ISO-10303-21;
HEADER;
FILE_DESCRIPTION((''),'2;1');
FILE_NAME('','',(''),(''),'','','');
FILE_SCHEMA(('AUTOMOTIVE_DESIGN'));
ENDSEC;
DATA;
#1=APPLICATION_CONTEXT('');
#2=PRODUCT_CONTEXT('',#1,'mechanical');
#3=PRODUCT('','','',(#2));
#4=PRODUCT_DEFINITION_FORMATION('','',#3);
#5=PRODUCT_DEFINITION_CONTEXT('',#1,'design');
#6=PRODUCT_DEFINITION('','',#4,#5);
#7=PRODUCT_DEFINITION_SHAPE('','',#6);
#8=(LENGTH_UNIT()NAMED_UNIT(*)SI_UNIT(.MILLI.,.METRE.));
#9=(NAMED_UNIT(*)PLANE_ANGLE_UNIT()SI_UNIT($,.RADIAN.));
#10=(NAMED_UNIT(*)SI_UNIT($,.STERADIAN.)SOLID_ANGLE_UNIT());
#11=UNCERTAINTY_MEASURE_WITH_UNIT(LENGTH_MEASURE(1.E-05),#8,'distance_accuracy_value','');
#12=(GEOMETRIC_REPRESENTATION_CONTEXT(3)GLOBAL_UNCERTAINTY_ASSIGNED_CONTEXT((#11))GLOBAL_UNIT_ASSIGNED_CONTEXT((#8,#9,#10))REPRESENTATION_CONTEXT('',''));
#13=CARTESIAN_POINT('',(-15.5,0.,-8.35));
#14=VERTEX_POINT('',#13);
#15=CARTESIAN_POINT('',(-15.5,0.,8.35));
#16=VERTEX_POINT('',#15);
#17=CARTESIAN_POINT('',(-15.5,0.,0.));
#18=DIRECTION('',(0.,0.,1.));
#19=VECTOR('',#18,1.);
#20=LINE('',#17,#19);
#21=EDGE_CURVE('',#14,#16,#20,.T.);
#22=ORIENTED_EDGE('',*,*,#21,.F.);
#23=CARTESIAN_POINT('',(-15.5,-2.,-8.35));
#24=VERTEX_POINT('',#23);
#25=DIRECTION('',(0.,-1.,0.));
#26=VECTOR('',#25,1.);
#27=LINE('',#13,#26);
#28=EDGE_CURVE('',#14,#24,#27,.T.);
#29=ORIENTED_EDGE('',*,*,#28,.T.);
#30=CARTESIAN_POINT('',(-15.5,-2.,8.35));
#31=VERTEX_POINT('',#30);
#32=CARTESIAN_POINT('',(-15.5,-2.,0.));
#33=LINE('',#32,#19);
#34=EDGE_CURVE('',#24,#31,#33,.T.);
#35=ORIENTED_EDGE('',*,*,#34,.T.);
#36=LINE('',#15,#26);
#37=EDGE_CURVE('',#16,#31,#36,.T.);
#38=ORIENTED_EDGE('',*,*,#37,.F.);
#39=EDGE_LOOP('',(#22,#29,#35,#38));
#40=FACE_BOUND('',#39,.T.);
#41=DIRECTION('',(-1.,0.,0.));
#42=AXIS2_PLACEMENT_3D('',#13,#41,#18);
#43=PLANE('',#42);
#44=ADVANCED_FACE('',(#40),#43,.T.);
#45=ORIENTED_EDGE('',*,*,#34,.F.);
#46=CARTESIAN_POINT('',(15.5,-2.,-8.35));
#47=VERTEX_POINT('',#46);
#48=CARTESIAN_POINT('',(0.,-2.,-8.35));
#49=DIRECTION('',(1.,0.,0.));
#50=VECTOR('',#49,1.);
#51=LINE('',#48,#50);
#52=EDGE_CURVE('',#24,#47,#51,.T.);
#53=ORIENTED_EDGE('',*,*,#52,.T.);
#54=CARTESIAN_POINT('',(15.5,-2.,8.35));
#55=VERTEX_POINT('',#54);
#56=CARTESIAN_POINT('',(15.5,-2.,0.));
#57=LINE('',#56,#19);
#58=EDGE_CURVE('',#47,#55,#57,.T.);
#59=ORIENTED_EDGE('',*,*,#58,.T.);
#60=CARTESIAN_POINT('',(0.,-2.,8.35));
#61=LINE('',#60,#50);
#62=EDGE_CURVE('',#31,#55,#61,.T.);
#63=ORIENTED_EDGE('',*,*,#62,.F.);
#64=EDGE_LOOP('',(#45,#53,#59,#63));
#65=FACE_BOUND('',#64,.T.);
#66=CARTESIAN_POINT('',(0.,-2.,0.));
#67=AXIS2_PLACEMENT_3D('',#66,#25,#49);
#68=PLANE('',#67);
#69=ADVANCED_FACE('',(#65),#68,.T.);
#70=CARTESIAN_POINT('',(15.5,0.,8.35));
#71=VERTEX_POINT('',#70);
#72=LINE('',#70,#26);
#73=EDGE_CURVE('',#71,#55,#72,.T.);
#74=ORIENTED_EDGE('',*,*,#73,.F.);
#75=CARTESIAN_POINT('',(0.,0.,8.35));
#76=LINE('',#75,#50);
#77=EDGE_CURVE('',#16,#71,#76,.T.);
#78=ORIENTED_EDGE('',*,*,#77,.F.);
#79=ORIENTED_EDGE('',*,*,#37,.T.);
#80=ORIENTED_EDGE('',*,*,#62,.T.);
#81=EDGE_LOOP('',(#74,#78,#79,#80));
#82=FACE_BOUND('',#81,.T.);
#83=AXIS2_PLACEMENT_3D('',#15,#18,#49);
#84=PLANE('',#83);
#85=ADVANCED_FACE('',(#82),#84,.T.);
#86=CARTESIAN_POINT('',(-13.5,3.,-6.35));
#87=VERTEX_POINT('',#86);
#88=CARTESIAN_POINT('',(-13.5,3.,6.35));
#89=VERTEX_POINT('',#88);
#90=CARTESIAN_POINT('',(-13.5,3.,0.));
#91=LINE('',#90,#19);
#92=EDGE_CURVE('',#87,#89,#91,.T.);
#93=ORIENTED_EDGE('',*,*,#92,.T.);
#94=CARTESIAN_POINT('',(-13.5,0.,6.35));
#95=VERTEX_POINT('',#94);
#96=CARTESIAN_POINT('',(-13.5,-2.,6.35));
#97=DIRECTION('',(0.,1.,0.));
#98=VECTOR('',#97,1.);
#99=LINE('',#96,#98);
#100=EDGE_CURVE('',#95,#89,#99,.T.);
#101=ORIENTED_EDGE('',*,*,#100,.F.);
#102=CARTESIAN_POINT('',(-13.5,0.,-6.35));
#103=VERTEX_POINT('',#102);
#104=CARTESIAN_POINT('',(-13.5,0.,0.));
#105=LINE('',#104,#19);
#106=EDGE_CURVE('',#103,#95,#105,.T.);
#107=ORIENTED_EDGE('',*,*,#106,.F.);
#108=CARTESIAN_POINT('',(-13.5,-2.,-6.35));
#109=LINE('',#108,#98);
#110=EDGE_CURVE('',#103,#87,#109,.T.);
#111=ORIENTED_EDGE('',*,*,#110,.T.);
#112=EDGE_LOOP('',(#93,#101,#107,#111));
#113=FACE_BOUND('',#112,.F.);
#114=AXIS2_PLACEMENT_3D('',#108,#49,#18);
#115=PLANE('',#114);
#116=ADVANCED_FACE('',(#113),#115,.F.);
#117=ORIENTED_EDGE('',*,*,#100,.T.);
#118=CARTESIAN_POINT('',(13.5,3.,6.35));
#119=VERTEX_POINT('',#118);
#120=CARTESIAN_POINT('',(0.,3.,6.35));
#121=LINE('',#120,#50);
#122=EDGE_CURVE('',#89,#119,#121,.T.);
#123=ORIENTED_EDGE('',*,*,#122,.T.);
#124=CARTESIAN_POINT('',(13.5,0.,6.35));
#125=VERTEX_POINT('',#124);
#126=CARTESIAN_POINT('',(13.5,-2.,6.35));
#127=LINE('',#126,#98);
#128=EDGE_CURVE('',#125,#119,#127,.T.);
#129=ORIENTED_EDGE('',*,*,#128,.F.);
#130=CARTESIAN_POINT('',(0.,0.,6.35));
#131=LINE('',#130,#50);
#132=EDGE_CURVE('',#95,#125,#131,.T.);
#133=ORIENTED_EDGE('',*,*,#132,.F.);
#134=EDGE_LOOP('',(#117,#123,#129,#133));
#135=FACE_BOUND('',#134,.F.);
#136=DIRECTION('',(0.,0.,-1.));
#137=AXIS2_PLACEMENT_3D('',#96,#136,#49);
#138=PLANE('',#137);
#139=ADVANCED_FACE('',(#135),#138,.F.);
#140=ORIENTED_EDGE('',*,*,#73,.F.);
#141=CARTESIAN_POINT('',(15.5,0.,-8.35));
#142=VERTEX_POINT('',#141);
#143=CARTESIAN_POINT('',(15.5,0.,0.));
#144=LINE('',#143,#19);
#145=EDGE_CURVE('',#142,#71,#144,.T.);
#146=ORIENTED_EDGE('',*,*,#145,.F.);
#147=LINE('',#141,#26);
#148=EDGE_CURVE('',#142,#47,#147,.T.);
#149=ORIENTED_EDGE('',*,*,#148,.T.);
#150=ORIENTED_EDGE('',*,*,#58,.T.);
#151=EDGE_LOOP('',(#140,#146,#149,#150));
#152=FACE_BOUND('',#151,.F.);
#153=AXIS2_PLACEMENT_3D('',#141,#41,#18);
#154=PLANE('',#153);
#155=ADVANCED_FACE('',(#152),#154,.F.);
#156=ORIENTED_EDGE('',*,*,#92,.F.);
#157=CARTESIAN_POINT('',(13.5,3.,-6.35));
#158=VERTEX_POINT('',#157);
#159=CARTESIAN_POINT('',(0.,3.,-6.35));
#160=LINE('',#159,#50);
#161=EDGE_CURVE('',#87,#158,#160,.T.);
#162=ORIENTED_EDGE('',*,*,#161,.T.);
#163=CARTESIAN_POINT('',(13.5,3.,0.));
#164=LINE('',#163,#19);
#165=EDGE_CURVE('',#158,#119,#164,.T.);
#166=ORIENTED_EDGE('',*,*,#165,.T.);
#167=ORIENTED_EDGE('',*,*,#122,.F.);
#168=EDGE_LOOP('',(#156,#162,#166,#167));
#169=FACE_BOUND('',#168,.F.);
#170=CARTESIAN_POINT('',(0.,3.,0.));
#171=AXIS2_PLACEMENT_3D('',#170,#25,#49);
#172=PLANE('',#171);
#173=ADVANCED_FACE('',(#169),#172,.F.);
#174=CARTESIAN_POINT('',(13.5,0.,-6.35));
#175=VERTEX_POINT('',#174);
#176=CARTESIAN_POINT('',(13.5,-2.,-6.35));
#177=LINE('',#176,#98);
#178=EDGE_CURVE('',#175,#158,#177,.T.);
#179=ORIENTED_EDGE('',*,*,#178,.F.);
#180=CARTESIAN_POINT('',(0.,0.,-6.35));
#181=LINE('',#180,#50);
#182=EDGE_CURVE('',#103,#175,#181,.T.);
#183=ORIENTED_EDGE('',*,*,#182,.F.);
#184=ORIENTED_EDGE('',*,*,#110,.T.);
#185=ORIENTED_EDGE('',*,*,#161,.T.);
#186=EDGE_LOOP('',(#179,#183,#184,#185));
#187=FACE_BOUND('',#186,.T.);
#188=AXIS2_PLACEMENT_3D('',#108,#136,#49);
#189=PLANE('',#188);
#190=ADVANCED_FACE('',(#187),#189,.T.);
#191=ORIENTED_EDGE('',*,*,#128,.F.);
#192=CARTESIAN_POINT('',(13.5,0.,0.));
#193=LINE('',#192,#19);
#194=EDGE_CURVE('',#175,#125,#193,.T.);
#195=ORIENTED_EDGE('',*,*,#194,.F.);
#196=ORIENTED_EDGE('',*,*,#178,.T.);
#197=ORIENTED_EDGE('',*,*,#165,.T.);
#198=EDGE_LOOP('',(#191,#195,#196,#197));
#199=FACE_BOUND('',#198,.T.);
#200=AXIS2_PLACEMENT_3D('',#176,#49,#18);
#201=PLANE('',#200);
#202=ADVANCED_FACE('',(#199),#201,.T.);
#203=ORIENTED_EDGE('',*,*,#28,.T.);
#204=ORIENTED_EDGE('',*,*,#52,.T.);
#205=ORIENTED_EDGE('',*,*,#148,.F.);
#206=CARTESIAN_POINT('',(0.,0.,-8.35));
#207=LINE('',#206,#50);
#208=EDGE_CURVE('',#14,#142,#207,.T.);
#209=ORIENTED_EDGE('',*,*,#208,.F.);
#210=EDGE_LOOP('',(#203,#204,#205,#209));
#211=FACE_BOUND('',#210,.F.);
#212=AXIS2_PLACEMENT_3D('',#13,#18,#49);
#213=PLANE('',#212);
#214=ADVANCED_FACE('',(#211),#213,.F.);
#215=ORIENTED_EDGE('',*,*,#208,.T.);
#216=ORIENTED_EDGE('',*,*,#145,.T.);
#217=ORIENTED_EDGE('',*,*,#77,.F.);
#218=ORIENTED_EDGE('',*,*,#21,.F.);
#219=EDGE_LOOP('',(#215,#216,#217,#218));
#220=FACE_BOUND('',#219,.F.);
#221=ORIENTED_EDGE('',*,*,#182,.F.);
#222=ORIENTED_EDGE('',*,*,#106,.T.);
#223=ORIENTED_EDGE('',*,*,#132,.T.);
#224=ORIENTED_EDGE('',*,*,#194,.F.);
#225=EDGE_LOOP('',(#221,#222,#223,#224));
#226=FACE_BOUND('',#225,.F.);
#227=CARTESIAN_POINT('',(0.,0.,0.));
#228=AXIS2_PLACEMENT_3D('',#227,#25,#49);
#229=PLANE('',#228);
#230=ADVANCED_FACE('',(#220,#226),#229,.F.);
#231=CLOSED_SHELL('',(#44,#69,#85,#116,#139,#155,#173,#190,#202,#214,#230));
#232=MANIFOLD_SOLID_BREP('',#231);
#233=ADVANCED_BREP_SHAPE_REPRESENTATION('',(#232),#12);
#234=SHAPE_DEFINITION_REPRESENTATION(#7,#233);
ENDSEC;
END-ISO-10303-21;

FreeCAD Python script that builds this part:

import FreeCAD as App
import Part
import Sketcher
from FreeCAD import Vector
Q = App.Units.Quantity


def add_polygon(sketch, points):
    """Adds a closed chain of lines whose ends are joined by coincident constraints."""
    first, n = sketch.GeometryCount, len(points)
    for a, b in zip(points, points[1:] + points[:1]):
        sketch.addGeometry(Part.LineSegment(App.Vector(*a, 0), App.Vector(*b, 0)), False)
    for i in range(n):
        sketch.addConstraint(Sketcher.Constraint("Coincident", first + i, 2, first + (i + 1) % n, 1))

doc = App.newDocument("Part")
body = doc.addObject("PartDesign::Body", "Body")

sketch1 = body.newObject("Sketcher::SketchObject", "Sketch")
sketch1.AttachmentSupport = (doc.getObject("XZ_Plane"), [""])
sketch1.MapMode = "FlatFace"
add_polygon(sketch1, [(-16, 8), (-16, -8), (16, -8), (16, 8)])
add_polygon(sketch1, [(14, -6), (-14, -6), (-14, 6), (14, 6)])
sketch1.addConstraint([
    Sketcher.Constraint("Vertical", 0),
    Sketcher.Constraint("Horizontal", 1),
    Sketcher.Constraint("Vertical", 2),
    Sketcher.Constraint("Horizontal", 3),
    Sketcher.Constraint("Horizontal", 4),
    Sketcher.Constraint("Vertical", 5),
    Sketcher.Constraint("Horizontal", 6),
    Sketcher.Constraint("Vertical", 7),
    Sketcher.Constraint("Symmetric", 0, 2, 2, 2, -1, 1),
    Sketcher.Constraint("Symmetric", 4, 2, 6, 2, -1, 1),
    Sketcher.Constraint("DistanceX", 1, 1, 1, 2, Q("31 mm")),
    Sketcher.Constraint("DistanceX", 4, 2, 4, 1, Q("27 mm")),
    Sketcher.Constraint("DistanceY", 0, 2, 0, 1, Q("16.7 mm")),
    Sketcher.Constraint("DistanceY", 5, 1, 5, 2, Q("12.7 mm")),
])
pad1 = body.newObject("PartDesign::Pad", "Pad")
pad1.Profile = sketch1
pad1.Length = 2

sketch2 = body.newObject("Sketcher::SketchObject", "Sketch001")
sketch2.AttachmentSupport = (doc.getObject("XZ_Plane"), [""])
sketch2.MapMode = "FlatFace"
sketch2.AttachmentOffset = App.Placement(Vector(0, 0, 2), App.Rotation())
add_polygon(sketch2, [(-14, 6), (-14, -6), (14, -6), (14, 6)])
sketch2.addConstraint([
    Sketcher.Constraint("Vertical", 0),
    Sketcher.Constraint("Horizontal", 1),
    Sketcher.Constraint("Vertical", 2),
    Sketcher.Constraint("Horizontal", 3),
    Sketcher.Constraint("Symmetric", 0, 2, 2, 2, -1, 1),
    Sketcher.Constraint("DistanceX", 1, 1, 1, 2, Q("27 mm")),
    Sketcher.Constraint("DistanceY", 0, 2, 0, 1, Q("12.7 mm")),
])
pad2 = body.newObject("PartDesign::Pad", "Pad001")
pad2.Profile = sketch2
pad2.Length = 5
pad2.Reversed = True

doc.recompute()
